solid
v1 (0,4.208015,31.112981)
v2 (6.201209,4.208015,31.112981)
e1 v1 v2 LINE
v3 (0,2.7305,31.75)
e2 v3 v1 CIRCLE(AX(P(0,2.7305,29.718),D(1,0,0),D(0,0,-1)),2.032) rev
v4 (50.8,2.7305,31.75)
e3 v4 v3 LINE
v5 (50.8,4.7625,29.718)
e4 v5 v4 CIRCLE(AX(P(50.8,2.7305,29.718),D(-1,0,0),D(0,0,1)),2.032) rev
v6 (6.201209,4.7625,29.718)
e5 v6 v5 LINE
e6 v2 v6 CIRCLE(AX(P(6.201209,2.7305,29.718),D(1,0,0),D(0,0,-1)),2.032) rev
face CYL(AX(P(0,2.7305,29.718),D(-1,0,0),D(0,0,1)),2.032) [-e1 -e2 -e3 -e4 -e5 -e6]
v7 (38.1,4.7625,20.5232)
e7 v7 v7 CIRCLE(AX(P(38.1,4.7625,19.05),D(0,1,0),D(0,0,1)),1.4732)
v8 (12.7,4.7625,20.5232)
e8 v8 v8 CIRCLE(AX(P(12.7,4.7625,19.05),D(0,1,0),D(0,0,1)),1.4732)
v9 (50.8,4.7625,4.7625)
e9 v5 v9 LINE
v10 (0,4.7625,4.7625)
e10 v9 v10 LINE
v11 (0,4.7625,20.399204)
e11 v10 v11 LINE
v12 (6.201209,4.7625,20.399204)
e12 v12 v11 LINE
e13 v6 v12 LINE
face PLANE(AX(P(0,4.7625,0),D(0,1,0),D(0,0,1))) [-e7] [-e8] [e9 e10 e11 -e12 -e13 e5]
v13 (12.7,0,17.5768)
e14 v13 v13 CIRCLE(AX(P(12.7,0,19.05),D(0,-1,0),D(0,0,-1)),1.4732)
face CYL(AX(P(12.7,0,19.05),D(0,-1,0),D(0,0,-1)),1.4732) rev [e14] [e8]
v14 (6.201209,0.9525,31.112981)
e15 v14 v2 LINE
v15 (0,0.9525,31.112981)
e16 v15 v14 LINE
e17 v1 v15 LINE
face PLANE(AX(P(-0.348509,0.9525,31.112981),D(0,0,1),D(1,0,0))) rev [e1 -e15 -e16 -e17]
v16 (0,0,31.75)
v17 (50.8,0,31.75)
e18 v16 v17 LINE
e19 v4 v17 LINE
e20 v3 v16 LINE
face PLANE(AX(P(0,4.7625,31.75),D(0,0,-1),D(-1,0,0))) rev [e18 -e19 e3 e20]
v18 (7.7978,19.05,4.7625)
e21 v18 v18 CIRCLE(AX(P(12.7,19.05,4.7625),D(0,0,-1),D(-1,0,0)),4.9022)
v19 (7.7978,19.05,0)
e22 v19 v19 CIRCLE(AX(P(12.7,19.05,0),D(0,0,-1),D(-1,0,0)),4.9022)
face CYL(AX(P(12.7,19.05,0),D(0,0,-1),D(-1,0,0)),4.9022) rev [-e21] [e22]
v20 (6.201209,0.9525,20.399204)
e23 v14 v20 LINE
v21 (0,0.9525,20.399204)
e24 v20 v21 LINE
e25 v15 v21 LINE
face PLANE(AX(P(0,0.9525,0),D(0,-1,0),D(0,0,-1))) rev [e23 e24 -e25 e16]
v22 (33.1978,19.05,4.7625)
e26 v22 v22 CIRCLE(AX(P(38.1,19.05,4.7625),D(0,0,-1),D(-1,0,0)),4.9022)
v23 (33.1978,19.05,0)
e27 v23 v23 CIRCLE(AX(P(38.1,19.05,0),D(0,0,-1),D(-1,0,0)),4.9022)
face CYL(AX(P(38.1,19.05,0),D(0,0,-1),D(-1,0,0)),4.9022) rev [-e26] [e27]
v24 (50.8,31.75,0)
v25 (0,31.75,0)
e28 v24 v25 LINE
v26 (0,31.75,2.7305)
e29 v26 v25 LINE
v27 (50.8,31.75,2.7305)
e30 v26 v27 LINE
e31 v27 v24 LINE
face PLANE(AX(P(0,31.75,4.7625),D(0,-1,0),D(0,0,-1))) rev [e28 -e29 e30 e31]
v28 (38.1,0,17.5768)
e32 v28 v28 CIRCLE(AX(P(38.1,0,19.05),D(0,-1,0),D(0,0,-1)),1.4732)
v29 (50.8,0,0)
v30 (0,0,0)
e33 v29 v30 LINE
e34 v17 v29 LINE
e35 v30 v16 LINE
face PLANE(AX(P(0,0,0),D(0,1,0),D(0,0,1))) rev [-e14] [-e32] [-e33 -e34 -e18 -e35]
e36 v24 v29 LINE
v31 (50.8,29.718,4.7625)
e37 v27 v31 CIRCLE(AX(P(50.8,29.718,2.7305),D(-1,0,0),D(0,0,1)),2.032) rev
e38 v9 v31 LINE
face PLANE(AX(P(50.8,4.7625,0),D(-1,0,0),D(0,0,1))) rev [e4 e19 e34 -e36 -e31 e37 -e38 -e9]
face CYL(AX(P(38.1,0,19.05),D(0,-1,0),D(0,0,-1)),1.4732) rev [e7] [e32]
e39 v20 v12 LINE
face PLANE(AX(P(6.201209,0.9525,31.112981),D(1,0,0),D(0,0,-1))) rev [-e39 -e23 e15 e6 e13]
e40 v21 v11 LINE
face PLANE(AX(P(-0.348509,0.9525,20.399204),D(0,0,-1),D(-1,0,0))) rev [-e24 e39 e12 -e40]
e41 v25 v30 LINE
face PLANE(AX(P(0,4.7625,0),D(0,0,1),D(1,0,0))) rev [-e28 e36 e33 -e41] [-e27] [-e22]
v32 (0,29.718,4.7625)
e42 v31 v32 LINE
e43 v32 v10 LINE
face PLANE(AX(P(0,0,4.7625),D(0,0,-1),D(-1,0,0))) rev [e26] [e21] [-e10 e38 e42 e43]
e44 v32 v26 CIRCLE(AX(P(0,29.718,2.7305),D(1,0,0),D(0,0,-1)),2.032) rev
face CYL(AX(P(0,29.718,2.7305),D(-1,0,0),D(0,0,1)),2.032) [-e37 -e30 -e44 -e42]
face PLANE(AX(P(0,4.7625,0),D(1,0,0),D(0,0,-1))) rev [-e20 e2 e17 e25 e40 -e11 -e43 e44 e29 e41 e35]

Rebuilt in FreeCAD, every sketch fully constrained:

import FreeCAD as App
import Part
import Sketcher
Q = App.Units.Quantity


def edges_at(feature, points):
    """Names of the edges that pass closest to the given points."""
    edges = feature.Shape.Edges
    near = lambda p: min(range(len(edges)), key=lambda i: edges[i].distToShape(Part.Vertex(*p))[0])
    return sorted({f"Edge{near(p) + 1}" for p in points})

doc = App.newDocument("Part")
body = doc.addObject("PartDesign::Body", "Body")

# Sketch on XZ plane
sketch1 = doc.addObject("Sketcher::SketchObject", "Sketch")
body.addObject(sketch1)
sketch1.AttachmentSupport = (doc.XZ_Plane, [""])
sketch1.MapMode = "FlatFace"
sketch1.addGeometry(Part.LineSegment(App.Vector(0, 0, 0), App.Vector(0, 31.75, 0)), False)
sketch1.addGeometry(Part.LineSegment(App.Vector(0, 31.75, 0), App.Vector(50.8, 31.75, 0)), False)
sketch1.addGeometry(Part.LineSegment(App.Vector(50.8, 31.75, 0), App.Vector(50.8, 0, 0)), False)
sketch1.addGeometry(Part.LineSegment(App.Vector(50.8, 0, 0), App.Vector(0, 0, 0)), False)
sketch1.addConstraint(Sketcher.Constraint("Coincident", 0, 2, 1, 1))
sketch1.addConstraint(Sketcher.Constraint("Coincident", 1, 2, 2, 1))
sketch1.addConstraint(Sketcher.Constraint("Coincident", 2, 2, 3, 1))
sketch1.addConstraint(Sketcher.Constraint("Coincident", 3, 2, 0, 1))
sketch1.addConstraint(Sketcher.Constraint("Vertical", 0))
sketch1.addConstraint(Sketcher.Constraint("Horizontal", 1))
sketch1.addConstraint(Sketcher.Constraint("Vertical", 2))
sketch1.addConstraint(Sketcher.Constraint("Horizontal", 3))
sketch1.addConstraint(Sketcher.Constraint("Coincident", 3, 2, -1, 1))
sketch1.addConstraint(Sketcher.Constraint("DistanceX", 1, 1, 1, 2, Q("2 in")))
sketch1.addConstraint(Sketcher.Constraint("DistanceY", 0, 1, 0, 2, Q("1.25 in")))
pad1 = doc.addObject("PartDesign::Pad", "Pad")
body.addObject(pad1)
pad1.Profile = sketch1
pad1.Length = Q("0.1875 in")
pad1.Reversed = True

# Sketch on XY plane
sketch2 = doc.addObject("Sketcher::SketchObject", "Sketch001")
body.addObject(sketch2)
sketch2.AttachmentSupport = (doc.XY_Plane, [""])
sketch2.MapMode = "FlatFace"
sketch2.addGeometry(Part.LineSegment(App.Vector(0, 31.75, 0), App.Vector(0, 0, 0)), False)
sketch2.addGeometry(Part.LineSegment(App.Vector(0, 0, 0), App.Vector(50.8, 0, 0)), False)
sketch2.addGeometry(Part.LineSegment(App.Vector(50.8, 0, 0), App.Vector(50.8, 31.75, 0)), False)
sketch2.addGeometry(Part.LineSegment(App.Vector(50.8, 31.75, 0), App.Vector(0, 31.75, 0)), False)
sketch2.addConstraint(Sketcher.Constraint("Coincident", 0, 2, 1, 1))
sketch2.addConstraint(Sketcher.Constraint("Coincident", 1, 2, 2, 1))
sketch2.addConstraint(Sketcher.Constraint("Coincident", 2, 2, 3, 1))
sketch2.addConstraint(Sketcher.Constraint("Coincident", 3, 2, 0, 1))
sketch2.addConstraint(Sketcher.Constraint("Vertical", 0))
sketch2.addConstraint(Sketcher.Constraint("Horizontal", 1))
sketch2.addConstraint(Sketcher.Constraint("Vertical", 2))
sketch2.addConstraint(Sketcher.Constraint("Horizontal", 3))
sketch2.addConstraint(Sketcher.Constraint("Coincident", 0, 2, -1, 1))
sketch2.addConstraint(Sketcher.Constraint("DistanceX", 1, 1, 1, 2, Q("2 in")))
sketch2.addConstraint(Sketcher.Constraint("DistanceY", 0, 2, 0, 1, Q("1.25 in")))
pad2 = doc.addObject("PartDesign::Pad", "Pad001")
body.addObject(pad2)
pad2.Profile = sketch2
pad2.Length = Q("0.1875 in")
doc.recompute()

fillet = doc.addObject("PartDesign::Fillet", "Fillet")
body.addObject(fillet)
fillet.Base = (pad2, edges_at(pad2, [(25.4, 31.75, 4.763), (25.4, 4.763, 31.75)]))
fillet.Radius = Q("0.08 in")

# Sketch on XZ plane
sketch3 = doc.addObject("Sketcher::SketchObject", "Sketch002")
body.addObject(sketch3)
sketch3.AttachmentSupport = (doc.XZ_Plane, [""])
sketch3.MapMode = "FlatFace"
sketch3.addGeometry(Part.Circle(App.Vector(38.1, 19.05, 0), App.Vector(0, 0, 1), 1.4732), False)
sketch3.addGeometry(Part.Circle(App.Vector(12.7, 19.05, 0), App.Vector(0, 0, 1), 1.4732), False)
sketch3.addConstraint(Sketcher.Constraint("Equal", 0, 1))
sketch3.addConstraint(Sketcher.Constraint("Horizontal", 0, 3, 1, 3))
sketch3.addConstraint(Sketcher.Constraint("Diameter", 0, Q("0.116 in")))
sketch3.addConstraint(Sketcher.Constraint("DistanceX", 1, 3, 0, 3, Q("1 in")))
sketch3.addConstraint(Sketcher.Constraint("DistanceX", -1, 1, 0, 3, Q("1.5 in")))
sketch3.addConstraint(Sketcher.Constraint("DistanceY", -1, 1, 0, 3, Q("0.75 in")))
doc.recompute()
hole = doc.addObject("PartDesign::Hole", "Hole")
body.addObject(hole)
hole.Profile = sketch3
hole.ThreadType = "None"
hole.Diameter = Q("0.116 in")
hole.DepthType = "ThroughAll"

# Sketch on XY plane
sketch4 = doc.addObject("Sketcher::SketchObject", "Sketch003")
body.addObject(sketch4)
sketch4.AttachmentSupport = (doc.XY_Plane, [""])
sketch4.MapMode = "FlatFace"
sketch4.addGeometry(Part.Circle(App.Vector(12.7, 19.05, 0), App.Vector(0, 0, 1), 4.9022), False)
sketch4.addGeometry(Part.Circle(App.Vector(38.1, 19.05, 0), App.Vector(0, 0, 1), 4.9022), False)
sketch4.addConstraint(Sketcher.Constraint("Equal", 0, 1))
sketch4.addConstraint(Sketcher.Constraint("Horizontal", 0, 3, 1, 3))
sketch4.addConstraint(Sketcher.Constraint("Diameter", 0, Q("0.386 in")))
sketch4.addConstraint(Sketcher.Constraint("DistanceX", 0, 3, 1, 3, Q("1 in")))
sketch4.addConstraint(Sketcher.Constraint("DistanceX", -1, 1, 0, 3, Q("0.5 in")))
sketch4.addConstraint(Sketcher.Constraint("DistanceY", -1, 1, 0, 3, Q("0.75 in")))
doc.recompute()
hole2 = doc.addObject("PartDesign::Hole", "Hole001")
body.addObject(hole2)
hole2.Profile = sketch4
hole2.ThreadType = "None"
hole2.Diameter = Q("0.386 in")
hole2.DepthType = "ThroughAll"
hole2.Reversed = True

# Sketch on XZ plane
sketch5 = doc.addObject("Sketcher::SketchObject", "Sketch004")
body.addObject(sketch5)
sketch5.AttachmentSupport = (doc.XZ_Plane, [""])
sketch5.MapMode = "FlatFace"
sketch5.AttachmentOffset = App.Placement(App.Vector(0, 0, -0.1875 * 25.4), App.Rotation())
sketch5.addGeometry(Part.LineSegment(App.Vector(-0.348509, 20.399204, 0), App.Vector(-0.348509, 31.112981, 0)), False)
sketch5.addGeometry(Part.LineSegment(App.Vector(-0.348509, 31.112981, 0), App.Vector(6.201209, 31.112981, 0)), False)
sketch5.addGeometry(Part.LineSegment(App.Vector(6.201209, 31.112981, 0), App.Vector(6.201209, 20.399204, 0)), False)
sketch5.addGeometry(Part.LineSegment(App.Vector(6.201209, 20.399204, 0), App.Vector(-0.348509, 20.399204, 0)), False)
sketch5.addConstraint(Sketcher.Constraint("Coincident", 0, 2, 1, 1))
sketch5.addConstraint(Sketcher.Constraint("Coincident", 1, 2, 2, 1))
sketch5.addConstraint(Sketcher.Constraint("Coincident", 2, 2, 3, 1))
sketch5.addConstraint(Sketcher.Constraint("Coincident", 3, 2, 0, 1))
sketch5.addConstraint(Sketcher.Constraint("Vertical", 0))
sketch5.addConstraint(Sketcher.Constraint("Horizontal", 1))
sketch5.addConstraint(Sketcher.Constraint("Vertical", 2))
sketch5.addConstraint(Sketcher.Constraint("Horizontal", 3))
sketch5.addConstraint(Sketcher.Constraint("DistanceX", 1, 1, 1, 2, Q("6.549718 mm")))
sketch5.addConstraint(Sketcher.Constraint("DistanceY", 0, 1, 0, 2, Q("10.713777 mm")))
sketch5.addConstraint(Sketcher.Constraint("DistanceX", 0, 2, -1, 1, Q("0.348509 mm")))
sketch5.addConstraint(Sketcher.Constraint("DistanceY", -1, 1, 0, 2, Q("31.112981 mm")))
pocket1 = doc.addObject("PartDesign::Pocket", "Pocket")
body.addObject(pocket1)
pocket1.Profile = sketch5
pocket1.Length = Q("0.15 in")
pocket1.Reversed = True

doc.recompute()
